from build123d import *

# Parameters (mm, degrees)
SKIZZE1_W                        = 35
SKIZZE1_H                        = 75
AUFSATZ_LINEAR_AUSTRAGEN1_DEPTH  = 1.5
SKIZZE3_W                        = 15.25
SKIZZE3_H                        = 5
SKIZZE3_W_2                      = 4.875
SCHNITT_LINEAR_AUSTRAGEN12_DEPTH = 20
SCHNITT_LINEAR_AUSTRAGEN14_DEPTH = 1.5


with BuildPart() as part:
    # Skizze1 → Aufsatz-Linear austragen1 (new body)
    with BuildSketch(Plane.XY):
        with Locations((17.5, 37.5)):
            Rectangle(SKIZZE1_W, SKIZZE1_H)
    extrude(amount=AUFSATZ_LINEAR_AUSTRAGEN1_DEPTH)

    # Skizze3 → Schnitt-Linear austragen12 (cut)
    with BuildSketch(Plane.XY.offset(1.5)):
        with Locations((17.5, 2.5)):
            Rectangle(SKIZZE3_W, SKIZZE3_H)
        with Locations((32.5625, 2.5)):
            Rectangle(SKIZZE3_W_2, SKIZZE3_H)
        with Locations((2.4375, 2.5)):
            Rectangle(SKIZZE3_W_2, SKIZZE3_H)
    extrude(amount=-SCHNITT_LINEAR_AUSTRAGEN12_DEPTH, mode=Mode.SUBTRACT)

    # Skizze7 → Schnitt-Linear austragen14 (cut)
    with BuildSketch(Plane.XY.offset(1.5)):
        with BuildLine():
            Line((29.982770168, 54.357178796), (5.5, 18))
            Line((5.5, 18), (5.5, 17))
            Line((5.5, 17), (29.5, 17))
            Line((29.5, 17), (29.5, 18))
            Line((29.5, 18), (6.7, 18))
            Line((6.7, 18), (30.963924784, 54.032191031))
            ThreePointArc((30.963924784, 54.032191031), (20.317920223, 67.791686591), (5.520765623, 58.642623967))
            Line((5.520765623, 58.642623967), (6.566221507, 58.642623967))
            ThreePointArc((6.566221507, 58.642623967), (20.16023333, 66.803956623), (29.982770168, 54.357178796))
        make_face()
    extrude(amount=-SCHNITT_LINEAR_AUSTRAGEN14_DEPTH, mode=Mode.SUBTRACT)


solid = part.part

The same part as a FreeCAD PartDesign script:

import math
import FreeCAD as App
import Part
import Sketcher
from FreeCAD import Vector


def add_polygon(sketch, points):
    """Adds a closed chain of lines whose ends are joined by coincident constraints."""
    first, n = sketch.GeometryCount, len(points)
    for a, b in zip(points, points[1:] + points[:1]):
        sketch.addGeometry(Part.LineSegment(App.Vector(*a, 0), App.Vector(*b, 0)), False)
    for i in range(n):
        sketch.addConstraint(Sketcher.Constraint("Coincident", first + i, 2, first + (i + 1) % n, 1))

doc = App.newDocument("Part")
body = doc.addObject("PartDesign::Body", "Body")

sketch1 = doc.addObject("Sketcher::SketchObject", "Sketch")
body.addObject(sketch1)
sketch1.AttachmentSupport = (doc.XY_Plane, [""])
sketch1.MapMode = "FlatFace"
add_polygon(sketch1, [(0, 75), (0, 0), (35, 0), (35, 75)])
sketch1.addConstraint([
    Sketcher.Constraint("Vertical", 0),
    Sketcher.Constraint("Horizontal", 1),
    Sketcher.Constraint("Vertical", 2),
    Sketcher.Constraint("Horizontal", 3),
    Sketcher.Constraint("Coincident", 0, 2, -1, 1),
    Sketcher.Constraint("DistanceX", 1, 1, 1, 2, 35.0),
    Sketcher.Constraint("DistanceY", 0, 2, 0, 1, 75.0),
])
pad1 = doc.addObject("PartDesign::Pad", "Pad")
body.addObject(pad1)
pad1.Profile = sketch1
pad1.Length = 1.5

sketch2 = doc.addObject("Sketcher::SketchObject", "Sketch001")
body.addObject(sketch2)
sketch2.AttachmentSupport = (doc.XY_Plane, [""])
sketch2.MapMode = "FlatFace"
sketch2.AttachmentOffset = App.Placement(Vector(0, 0, 1.5), App.Rotation())
add_polygon(sketch2, [(9.9, 5), (9.9, 0), (25.1, 0), (25.1, 5)])
add_polygon(sketch2, [(30.1, 5), (30.1, 0), (35, 0), (35, 5)])
add_polygon(sketch2, [(0, 5), (0, 0), (4.9, 0), (4.9, 5)])
sketch2.addConstraint([
    Sketcher.Constraint("Vertical", 0),
    Sketcher.Constraint("Horizontal", 1),
    Sketcher.Constraint("Vertical", 2),
    Sketcher.Constraint("Horizontal", 3),
    Sketcher.Constraint("Vertical", 4),
    Sketcher.Constraint("Horizontal", 5),
    Sketcher.Constraint("Vertical", 6),
    Sketcher.Constraint("Horizontal", 7),
    Sketcher.Constraint("Vertical", 8),
    Sketcher.Constraint("Horizontal", 9),
    Sketcher.Constraint("Vertical", 10),
    Sketcher.Constraint("Horizontal", 11),
    Sketcher.Constraint("Coincident", 8, 2, -1, 1),
    Sketcher.Constraint("PointOnObject", 0, 2, -1),
    Sketcher.Constraint("PointOnObject", 4, 2, -1),
    Sketcher.Constraint("Horizontal", 3, 2, 6, 2),
    Sketcher.Constraint("Horizontal", 7, 2, 10, 2),
    Sketcher.Constraint("Equal", 7, 9),
    Sketcher.Constraint("DistanceY", 0, 2, 0, 1, 5.0),
    Sketcher.Constraint("DistanceX", -1, 1, 5, 2, 35.0),
    Sketcher.Constraint("DistanceX", 1, 2, 4, 2, 5.0),
    Sketcher.Constraint("DistanceX", 9, 2, 0, 2, 5.0),
    Sketcher.Constraint("DistanceX", 1, 1, 1, 2, 15.25),
])
pocket1 = doc.addObject("PartDesign::Pocket", "Pocket")
body.addObject(pocket1)
pocket1.Profile = sketch2
pocket1.Length = 20

sketch3 = doc.addObject("Sketcher::SketchObject", "Sketch002")
body.addObject(sketch3)
sketch3.AttachmentSupport = (doc.XY_Plane, [""])
sketch3.MapMode = "FlatFace"
sketch3.AttachmentOffset = App.Placement(Vector(0, 0, 1.5), App.Rotation())
sketch3.addGeometry([
    Part.LineSegment(Vector(30, 54.4, 0), Vector(5.5, 18, 0)),
    Part.LineSegment(Vector(5.5, 18, 0), Vector(5.5, 17, 0)),
    Part.LineSegment(Vector(5.5, 17, 0), Vector(29.5, 17, 0)),
    Part.LineSegment(Vector(29.5, 17, 0), Vector(29.5, 18, 0)),
    Part.LineSegment(Vector(29.5, 18, 0), Vector(6.7, 18, 0)),
    Part.LineSegment(Vector(6.7, 18, 0), Vector(31, 54, 0)),
    Part.ArcOfCircle(Part.Circle(Vector(18, 55, 0), Vector(0, 0, 1), 13), math.radians(-4), math.radians(164)),
    Part.LineSegment(Vector(5.5, 58.6, 0), Vector(6.6, 58.6, 0)),
    Part.ArcOfCircle(Part.Circle(Vector(18, 55, 0), Vector(0, 0, 1), 12), math.radians(-3), math.radians(162)),
], False)
sketch3.addConstraint([
    Sketcher.Constraint("Coincident", 0, 2, 1, 1),
    Sketcher.Constraint("Coincident", 1, 2, 2, 1),
    Sketcher.Constraint("Coincident", 2, 2, 3, 1),
    Sketcher.Constraint("Coincident", 3, 2, 4, 1),
    Sketcher.Constraint("Coincident", 4, 2, 5, 1),
    Sketcher.Constraint("Coincident", 5, 2, 6, 1),
    Sketcher.Constraint("Coincident", 6, 2, 7, 1),
    Sketcher.Constraint("Coincident", 7, 2, 8, 2),
    Sketcher.Constraint("Coincident", 8, 1, 0, 1),
    Sketcher.Constraint("Vertical", 1),
    Sketcher.Constraint("Horizontal", 2),
    Sketcher.Constraint("Vertical", 3),
    Sketcher.Constraint("Horizontal", 4),
    Sketcher.Constraint("Horizontal", 7),
    Sketcher.Constraint("Coincident", 8, 3, 6, 3),
    Sketcher.Constraint("Parallel", 0, 5),
    Sketcher.Constraint("Horizontal", 0, 2, 3, 2),
    Sketcher.Constraint("Radius", 6, 13.0),
    Sketcher.Constraint("Radius", 8, 12.0),
    Sketcher.Constraint("DistanceX", 2, 1, 2, 2, 24.0),
    Sketcher.Constraint("DistanceY", 1, 2, 1, 1, 1.0),
    Sketcher.Constraint("DistanceX", 4, 2, 4, 1, 22.8),
    Sketcher.Constraint("DistanceX", -1, 1, 6, 3, 18.0),
    Sketcher.Constraint("DistanceY", -1, 1, 6, 3, 55.0),
    Sketcher.Constraint("DistanceY", -1, 1, 0, 2, 18.0),
    Sketcher.Constraint("DistanceX", -1, 1, 0, 2, 5.5),
    Sketcher.Constraint("Distance", 0, 43.832071),
    Sketcher.Constraint("DistanceX", 7, 1, 7, 2, 1.045456),
])
pocket2 = doc.addObject("PartDesign::Pocket", "Pocket001")
body.addObject(pocket2)
pocket2.Profile = sketch3
pocket2.Length = 1.5

doc.recompute()
